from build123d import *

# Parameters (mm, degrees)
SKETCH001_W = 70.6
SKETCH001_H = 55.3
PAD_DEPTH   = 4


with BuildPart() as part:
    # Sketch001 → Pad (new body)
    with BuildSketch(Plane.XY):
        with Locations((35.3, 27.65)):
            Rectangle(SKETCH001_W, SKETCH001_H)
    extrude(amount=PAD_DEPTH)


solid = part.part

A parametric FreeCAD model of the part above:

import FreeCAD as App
import Part
import Sketcher
from FreeCAD import Vector

doc = App.newDocument("Part")
body = doc.addObject("PartDesign::Body", "Body")

# Sketch on XY plane
sketch1 = body.newObject("Sketcher::SketchObject", "Sketch")
sketch1.AttachmentSupport = (doc.getObject("XY_Plane"), [""])
sketch1.MapMode = "FlatFace"
sketch1.addGeometry([
    Part.LineSegment(Vector(0, 55.3, 0), Vector(0, 0, 0)),
    Part.LineSegment(Vector(0, 0, 0), Vector(70.6, 0, 0)),
    Part.LineSegment(Vector(70.6, 0, 0), Vector(70.6, 55.3, 0)),
    Part.LineSegment(Vector(70.6, 55.3, 0), Vector(0, 55.3, 0)),
], False)
sketch1.addConstraint([
    Sketcher.Constraint("Coincident", 0, 2, 1, 1),
    Sketcher.Constraint("Coincident", 1, 2, 2, 1),
    Sketcher.Constraint("Coincident", 2, 2, 3, 1),
    Sketcher.Constraint("Coincident", 3, 2, 0, 1),
    Sketcher.Constraint("Vertical", 0),
    Sketcher.Constraint("Horizontal", 1),
    Sketcher.Constraint("Vertical", 2),
    Sketcher.Constraint("Horizontal", 3),
    Sketcher.Constraint("Coincident", 0, 2, -1, 1),
    Sketcher.Constraint("DistanceX", 1, 1, 1, 2, 70.6),
    Sketcher.Constraint("DistanceY", 0, 2, 0, 1, 55.3),
])
pad1 = body.newObject("PartDesign::Pad", "Pad")
pad1.Profile = sketch1
pad1.Length = 4

doc.recompute()
